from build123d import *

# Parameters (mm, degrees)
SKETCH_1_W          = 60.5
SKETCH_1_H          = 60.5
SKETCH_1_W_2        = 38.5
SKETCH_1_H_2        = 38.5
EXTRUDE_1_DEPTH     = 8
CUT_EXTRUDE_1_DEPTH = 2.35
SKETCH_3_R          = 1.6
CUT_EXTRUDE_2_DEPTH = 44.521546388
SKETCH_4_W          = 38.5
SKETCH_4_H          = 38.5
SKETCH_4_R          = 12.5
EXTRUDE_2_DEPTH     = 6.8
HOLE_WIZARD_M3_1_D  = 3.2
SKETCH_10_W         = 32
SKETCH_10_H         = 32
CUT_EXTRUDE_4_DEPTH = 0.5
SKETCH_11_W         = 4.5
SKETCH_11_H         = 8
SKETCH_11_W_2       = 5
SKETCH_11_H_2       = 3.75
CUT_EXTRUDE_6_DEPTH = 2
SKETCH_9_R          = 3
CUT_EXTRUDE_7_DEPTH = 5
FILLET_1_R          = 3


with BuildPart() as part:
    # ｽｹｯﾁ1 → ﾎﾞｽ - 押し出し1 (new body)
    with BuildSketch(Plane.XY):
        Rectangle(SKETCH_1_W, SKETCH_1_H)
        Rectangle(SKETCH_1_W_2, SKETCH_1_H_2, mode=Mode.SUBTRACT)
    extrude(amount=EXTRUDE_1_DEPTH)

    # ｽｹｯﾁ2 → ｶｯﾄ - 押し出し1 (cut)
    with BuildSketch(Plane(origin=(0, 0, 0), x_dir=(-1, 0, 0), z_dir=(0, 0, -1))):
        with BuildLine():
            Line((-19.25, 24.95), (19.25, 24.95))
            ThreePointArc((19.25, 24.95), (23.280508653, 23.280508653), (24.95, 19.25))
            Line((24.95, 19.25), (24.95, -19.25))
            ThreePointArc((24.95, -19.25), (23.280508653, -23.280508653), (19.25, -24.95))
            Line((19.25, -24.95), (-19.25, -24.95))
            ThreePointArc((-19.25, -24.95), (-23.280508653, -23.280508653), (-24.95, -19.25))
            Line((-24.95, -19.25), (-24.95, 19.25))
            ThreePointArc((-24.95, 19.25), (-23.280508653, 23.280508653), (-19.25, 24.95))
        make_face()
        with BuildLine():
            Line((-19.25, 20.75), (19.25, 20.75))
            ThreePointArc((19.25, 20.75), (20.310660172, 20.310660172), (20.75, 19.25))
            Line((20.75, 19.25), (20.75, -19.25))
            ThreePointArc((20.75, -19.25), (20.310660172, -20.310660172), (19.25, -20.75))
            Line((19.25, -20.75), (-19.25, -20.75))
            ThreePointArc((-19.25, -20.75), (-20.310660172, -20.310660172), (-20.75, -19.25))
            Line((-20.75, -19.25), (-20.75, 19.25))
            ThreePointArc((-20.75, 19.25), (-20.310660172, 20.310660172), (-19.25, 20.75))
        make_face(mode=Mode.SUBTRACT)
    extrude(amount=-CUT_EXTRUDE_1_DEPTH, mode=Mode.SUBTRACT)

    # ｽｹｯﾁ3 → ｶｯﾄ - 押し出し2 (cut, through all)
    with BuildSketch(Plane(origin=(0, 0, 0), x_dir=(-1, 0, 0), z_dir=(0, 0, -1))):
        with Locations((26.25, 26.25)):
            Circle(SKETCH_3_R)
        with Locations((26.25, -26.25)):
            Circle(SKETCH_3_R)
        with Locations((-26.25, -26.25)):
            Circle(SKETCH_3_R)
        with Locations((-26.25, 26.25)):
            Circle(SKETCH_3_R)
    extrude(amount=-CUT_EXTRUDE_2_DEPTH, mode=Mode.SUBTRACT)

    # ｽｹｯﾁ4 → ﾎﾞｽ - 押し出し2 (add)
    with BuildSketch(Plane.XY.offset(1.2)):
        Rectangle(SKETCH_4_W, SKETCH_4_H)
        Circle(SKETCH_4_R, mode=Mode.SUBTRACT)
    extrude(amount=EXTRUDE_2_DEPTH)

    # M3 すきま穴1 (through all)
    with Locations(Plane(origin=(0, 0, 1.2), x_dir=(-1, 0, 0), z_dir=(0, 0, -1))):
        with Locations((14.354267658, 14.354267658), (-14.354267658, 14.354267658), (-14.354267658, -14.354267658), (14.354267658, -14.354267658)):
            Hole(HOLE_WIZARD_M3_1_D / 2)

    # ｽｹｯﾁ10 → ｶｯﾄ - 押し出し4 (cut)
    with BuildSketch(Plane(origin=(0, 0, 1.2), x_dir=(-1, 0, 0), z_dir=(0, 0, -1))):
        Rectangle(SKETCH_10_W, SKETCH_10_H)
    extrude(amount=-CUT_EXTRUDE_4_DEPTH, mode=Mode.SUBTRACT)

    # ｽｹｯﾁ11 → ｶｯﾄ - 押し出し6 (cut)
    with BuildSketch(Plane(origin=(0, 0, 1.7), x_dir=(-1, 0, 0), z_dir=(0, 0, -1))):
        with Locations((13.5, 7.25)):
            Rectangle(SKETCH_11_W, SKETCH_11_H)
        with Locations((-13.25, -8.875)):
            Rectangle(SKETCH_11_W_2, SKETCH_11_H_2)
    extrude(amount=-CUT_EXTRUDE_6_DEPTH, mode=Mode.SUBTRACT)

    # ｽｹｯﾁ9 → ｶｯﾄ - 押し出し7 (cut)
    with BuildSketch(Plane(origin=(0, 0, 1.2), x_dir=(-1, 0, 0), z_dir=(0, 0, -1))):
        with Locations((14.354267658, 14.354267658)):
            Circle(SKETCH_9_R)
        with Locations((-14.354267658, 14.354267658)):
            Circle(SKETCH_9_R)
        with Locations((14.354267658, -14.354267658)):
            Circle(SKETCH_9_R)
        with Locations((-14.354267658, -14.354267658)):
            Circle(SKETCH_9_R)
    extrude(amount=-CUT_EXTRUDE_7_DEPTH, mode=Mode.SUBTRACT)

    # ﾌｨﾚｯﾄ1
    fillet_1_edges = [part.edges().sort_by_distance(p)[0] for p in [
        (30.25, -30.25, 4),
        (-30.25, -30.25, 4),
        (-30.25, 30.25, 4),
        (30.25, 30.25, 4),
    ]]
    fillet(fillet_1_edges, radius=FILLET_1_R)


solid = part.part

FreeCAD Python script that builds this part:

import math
import FreeCAD as App
import Part
import Sketcher
Q = App.Units.Quantity


def edges_at(feature, points):
    """Names of the edges that pass closest to the given points."""
    edges = feature.Shape.Edges
    near = lambda p: min(range(len(edges)), key=lambda i: edges[i].distToShape(Part.Vertex(*p))[0])
    return sorted({f"Edge{near(p) + 1}" for p in points})

doc = App.newDocument("Part")
params = doc.addObject("Spreadsheet::Sheet", "Params")
for row, (alias, value) in enumerate([
    ("sketch1_width", "60.5 mm"),
    ("sketch1_width2", "38.5 mm"),
    ("pad1_length", "8 mm"),
    ("sketch2_radius", "5.7 mm"),
    ("sketch2_radius2", "1.5 mm"),
    ("sketch2_width", "38.5 mm"),
    ("pocket1_length", "2.35 mm"),
    ("sketch3_diameter", "3.2 mm"),
    ("sketch4_diameter", "25 mm"),
    ("sketch4_width", "38.5 mm"),
    ("pad2_length", "6.8 mm"),
    ("sketch5_diameter", "3.2 mm"),
    ("hole_diameter", "3.2 mm"),
    ("sketch6_width", "32 mm"),
    ("pocket3_length", "0.5 mm"),
    ("sketch7_width", "5 mm"),
    ("sketch7_height", "8 mm"),
    ("sketch7_width2", "4.5 mm"),
    ("sketch7_height2", "3.75 mm"),
    ("pocket4_length", "2 mm"),
    ("sketch8_diameter", "6 mm"),
    ("pocket5_length", "5 mm"),
    ("fillet_radius", "3 mm"),
], start=1):
    params.set(f"A{row}", alias)
    params.set(f"B{row}", "=" + value)
    params.setAlias(f"B{row}", alias)

body = doc.addObject("PartDesign::Body", "Body")

sketch1 = body.newObject("Sketcher::SketchObject", "Sketch")
sketch1.AttachmentSupport = (doc.getObject("XY_Plane"), [""])
sketch1.MapMode = "FlatFace"
sketch1.addGeometry([
    Part.LineSegment(App.Vector(-30, 30, 0), App.Vector(-30, -30, 0)),
    Part.LineSegment(App.Vector(-30, -30, 0), App.Vector(30, -30, 0)),
    Part.LineSegment(App.Vector(30, -30, 0), App.Vector(30, 30, 0)),
    Part.LineSegment(App.Vector(30, 30, 0), App.Vector(-30, 30, 0)),
    Part.LineSegment(App.Vector(19, -19, 0), App.Vector(-19, -19, 0)),
    Part.LineSegment(App.Vector(-19, -19, 0), App.Vector(-19, 19, 0)),
    Part.LineSegment(App.Vector(-19, 19, 0), App.Vector(19, 19, 0)),
    Part.LineSegment(App.Vector(19, 19, 0), App.Vector(19, -19, 0)),
], False)
sketch1.addConstraint([
    Sketcher.Constraint("Coincident", 0, 2, 1, 1),
    Sketcher.Constraint("Coincident", 1, 2, 2, 1),
    Sketcher.Constraint("Coincident", 2, 2, 3, 1),
    Sketcher.Constraint("Coincident", 3, 2, 0, 1),
    Sketcher.Constraint("Coincident", 4, 2, 5, 1),
    Sketcher.Constraint("Coincident", 5, 2, 6, 1),
    Sketcher.Constraint("Coincident", 6, 2, 7, 1),
    Sketcher.Constraint("Coincident", 7, 2, 4, 1),
    Sketcher.Constraint("Vertical", 0),
    Sketcher.Constraint("Horizontal", 1),
    Sketcher.Constraint("Vertical", 2),
    Sketcher.Constraint("Horizontal", 3),
    Sketcher.Constraint("Horizontal", 4),
    Sketcher.Constraint("Vertical", 5),
    Sketcher.Constraint("Horizontal", 6),
    Sketcher.Constraint("Vertical", 7),
    Sketcher.Constraint("Symmetric", 0, 2, 2, 2, -1, 1),
    Sketcher.Constraint("Symmetric", 4, 2, 6, 2, -1, 1),
    Sketcher.Constraint("Equal", 3, 0),
    Sketcher.Constraint("Equal", 6, 5),
    Sketcher.Constraint("DistanceX", 1, 1, 1, 2, Q("60.5 mm")),
    Sketcher.Constraint("DistanceX", 4, 2, 4, 1, Q("38.5 mm")),
])
sketch1.setExpression("Constraints[20]", "Params.sketch1_width")
sketch1.setExpression("Constraints[21]", "Params.sketch1_width2")
pad1 = body.newObject("PartDesign::Pad", "Pad")
pad1.Profile = sketch1
pad1.setExpression("Length", "Params.pad1_length")

sketch2 = body.newObject("Sketcher::SketchObject", "Sketch001")
sketch2.AttachmentSupport = (doc.getObject("XY_Plane"), [""])
sketch2.MapMode = "FlatFace"
sketch2.addGeometry([
    Part.LineSegment(App.Vector(-19.2, 24.9, 0), App.Vector(19.2, 24.9, 0)),
    Part.ArcOfCircle(Part.Circle(App.Vector(19.3, 19.3, 0), App.Vector(0, 0, 1), 5.7), math.radians(0), math.radians(90)),
    Part.LineSegment(App.Vector(24.9, 19.2, 0), App.Vector(24.9, -19.2, 0)),
    Part.ArcOfCircle(Part.Circle(App.Vector(19.3, -19.3, 0), App.Vector(0, 0, 1), 5.7), math.radians(-90), math.radians(0)),
    Part.LineSegment(App.Vector(19.2, -24.9, 0), App.Vector(-19.2, -24.9, 0)),
    Part.ArcOfCircle(Part.Circle(App.Vector(-19.3, -19.3, 0), App.Vector(0, 0, 1), 5.7), math.radians(180), math.radians(270)),
    Part.LineSegment(App.Vector(-24.9, -19.2, 0), App.Vector(-24.9, 19.2, 0)),
    Part.ArcOfCircle(Part.Circle(App.Vector(-19.3, 19.3, 0), App.Vector(0, 0, 1), 5.7), math.radians(90), math.radians(180)),
    Part.LineSegment(App.Vector(19.2, 20.8, 0), App.Vector(-19.2, 20.8, 0)),
    Part.ArcOfCircle(Part.Circle(App.Vector(-19.3, 19.3, 0), App.Vector(0, 0, 1), 1.5), math.radians(90), math.radians(180)),
    Part.LineSegment(App.Vector(-20.8, 19.2, 0), App.Vector(-20.8, -19.2, 0)),
    Part.ArcOfCircle(Part.Circle(App.Vector(-19.3, -19.3, 0), App.Vector(0, 0, 1), 1.5), math.radians(180), math.radians(270)),
    Part.LineSegment(App.Vector(-19.2, -20.8, 0), App.Vector(19.2, -20.8, 0)),
    Part.ArcOfCircle(Part.Circle(App.Vector(19.3, -19.3, 0), App.Vector(0, 0, 1), 1.5), math.radians(-90), math.radians(0)),
    Part.LineSegment(App.Vector(20.8, -19.2, 0), App.Vector(20.8, 19.2, 0)),
    Part.ArcOfCircle(Part.Circle(App.Vector(19.3, 19.3, 0), App.Vector(0, 0, 1), 1.5), math.radians(0), math.radians(90)),
], False)
sketch2.addConstraint([
    Sketcher.Constraint("Tangent", 0, 2, 1, 2),
    Sketcher.Constraint("Tangent", 1, 1, 2, 1),
    Sketcher.Constraint("Tangent", 2, 2, 3, 2),
    Sketcher.Constraint("Tangent", 3, 1, 4, 1),
    Sketcher.Constraint("Tangent", 4, 2, 5, 2),
    Sketcher.Constraint("Tangent", 5, 1, 6, 1),
    Sketcher.Constraint("Tangent", 6, 2, 7, 2),
    Sketcher.Constraint("Tangent", 7, 1, 0, 1),
    Sketcher.Constraint("Tangent", 8, 2, 9, 1),
    Sketcher.Constraint("Tangent", 9, 2, 10, 1),
    Sketcher.Constraint("Tangent", 10, 2, 11, 1),
    Sketcher.Constraint("Tangent", 11, 2, 12, 1),
    Sketcher.Constraint("Tangent", 12, 2, 13, 1),
    Sketcher.Constraint("Tangent", 13, 2, 14, 1),
    Sketcher.Constraint("Tangent", 14, 2, 15, 1),
    Sketcher.Constraint("Tangent", 15, 2, 8, 1),
    Sketcher.Constraint("Horizontal", 0),
    Sketcher.Constraint("Vertical", 2),
    Sketcher.Constraint("Horizontal", 4),
    Sketcher.Constraint("Vertical", 6),
    Sketcher.Constraint("Horizontal", 8),
    Sketcher.Constraint("Vertical", 10),
    Sketcher.Constraint("Horizontal", 12),
    Sketcher.Constraint("Vertical", 14),
    Sketcher.Constraint("Coincident", 9, 3, 7, 3),
    Sketcher.Constraint("Coincident", 11, 3, 5, 3),
    Sketcher.Constraint("Coincident", 13, 3, 3, 3),
    Sketcher.Constraint("Equal", 1, 3),
    Sketcher.Constraint("Equal", 3, 5),
    Sketcher.Constraint("Equal", 5, 7),
    Sketcher.Constraint("Equal", 13, 15),
    Sketcher.Constraint("Symmetric", 1, 3, 5, 3, -1, 1),
    Sketcher.Constraint("Equal", 12, 2),
    Sketcher.Constraint("Radius", 1, Q("5.7 mm")),
    Sketcher.Constraint("Radius", 9, Q("1.5 mm")),
    Sketcher.Constraint("DistanceX", 0, 1, 0, 2, Q("38.5 mm")),
])
sketch2.setExpression("Constraints[33]", "Params.sketch2_radius")
sketch2.setExpression("Constraints[34]", "Params.sketch2_radius2")
sketch2.setExpression("Constraints[35]", "Params.sketch2_width")
pocket1 = body.newObject("PartDesign::Pocket", "Pocket")
pocket1.Profile = sketch2
pocket1.setExpression("Length", "Params.pocket1_length")
pocket1.Reversed = True

sketch3 = body.newObject("Sketcher::SketchObject", "Sketch002")
sketch3.AttachmentSupport = (doc.getObject("XY_Plane"), [""])
sketch3.MapMode = "FlatFace"
sketch3.addGeometry([
    Part.Circle(App.Vector(-26.2, 26.2, 0), App.Vector(0, 0, 1), 1.6),
    Part.Circle(App.Vector(-26.2, -26.2, 0), App.Vector(0, 0, 1), 1.6),
    Part.Circle(App.Vector(26.2, -26.2, 0), App.Vector(0, 0, 1), 1.6),
    Part.Circle(App.Vector(26.2, 26.2, 0), App.Vector(0, 0, 1), 1.6),
], False)
sketch3.addConstraint([
    Sketcher.Constraint("Equal", 0, 1),
    Sketcher.Constraint("Equal", 1, 2),
    Sketcher.Constraint("Equal", 2, 3),
    Sketcher.Constraint("Symmetric", 0, 3, 2, 3, -1, 1),
    Sketcher.Constraint("Symmetric", 1, 3, 3, 3, -1, 1),
    Sketcher.Constraint("Symmetric", 1, 3, 2, 3, -2),
    Sketcher.Constraint("Diameter", 0, Q("3.2 mm")),
    Sketcher.Constraint("DistanceY", 1, 3, 0, 3, Q("52.5 mm")),
    Sketcher.Constraint("DistanceX", 1, 3, 2, 3, Q("52.5 mm")),
])
sketch3.setExpression("Constraints[6]", "Params.sketch3_diameter")
pocket2 = body.newObject("PartDesign::Pocket", "Pocket001")
pocket2.Profile = sketch3
pocket2.Type = "ThroughAll"
pocket2.Reversed = True

sketch4 = body.newObject("Sketcher::SketchObject", "Sketch003")
sketch4.AttachmentSupport = (doc.getObject("XY_Plane"), [""])
sketch4.MapMode = "FlatFace"
sketch4.AttachmentOffset = App.Placement(App.Vector(0, 0, 1.2), App.Rotation())
sketch4.addGeometry([
    Part.LineSegment(App.Vector(-19, 19, 0), App.Vector(-19, -19, 0)),
    Part.LineSegment(App.Vector(-19, -19, 0), App.Vector(19, -19, 0)),
    Part.LineSegment(App.Vector(19, -19, 0), App.Vector(19, 19, 0)),
    Part.LineSegment(App.Vector(19, 19, 0), App.Vector(-19, 19, 0)),
    Part.Circle(App.Vector(0, 0, 0), App.Vector(0, 0, 1), 12),
], False)
sketch4.addConstraint([
    Sketcher.Constraint("Coincident", 0, 2, 1, 1),
    Sketcher.Constraint("Coincident", 1, 2, 2, 1),
    Sketcher.Constraint("Coincident", 2, 2, 3, 1),
    Sketcher.Constraint("Coincident", 3, 2, 0, 1),
    Sketcher.Constraint("Vertical", 0),
    Sketcher.Constraint("Horizontal", 1),
    Sketcher.Constraint("Vertical", 2),
    Sketcher.Constraint("Horizontal", 3),
    Sketcher.Constraint("Coincident", 4, 3, -1, 1),
    Sketcher.Constraint("Symmetric", 0, 2, 2, 2, -1, 1),
    Sketcher.Constraint("Equal", 3, 0),
    Sketcher.Constraint("Diameter", 4, Q("25 mm")),
    Sketcher.Constraint("DistanceX", 1, 1, 1, 2, Q("38.5 mm")),
])
sketch4.setExpression("Constraints[11]", "Params.sketch4_diameter")
sketch4.setExpression("Constraints[12]", "Params.sketch4_width")
pad2 = body.newObject("PartDesign::Pad", "Pad001")
pad2.Profile = sketch4
pad2.setExpression("Length", "Params.pad2_length")

sketch5 = body.newObject("Sketcher::SketchObject", "Sketch004")
sketch5.AttachmentSupport = (doc.getObject("XY_Plane"), [""])
sketch5.MapMode = "FlatFace"
sketch5.AttachmentOffset = App.Placement(App.Vector(0, 0, 1.2), App.Rotation())
sketch5.addGeometry([
    Part.Circle(App.Vector(-14.4, 14.4, 0), App.Vector(0, 0, 1), 1.6),
    Part.Circle(App.Vector(14.4, 14.4, 0), App.Vector(0, 0, 1), 1.6),
    Part.Circle(App.Vector(14.4, -14.4, 0), App.Vector(0, 0, 1), 1.6),
    Part.Circle(App.Vector(-14.4, -14.4, 0), App.Vector(0, 0, 1), 1.6),
], False)
sketch5.addConstraint([
    Sketcher.Constraint("Equal", 0, 1),
    Sketcher.Constraint("Equal", 1, 2),
    Sketcher.Constraint("Equal", 2, 3),
    Sketcher.Constraint("Symmetric", 0, 3, 2, 3, -1, 1),
    Sketcher.Constraint("Symmetric", 1, 3, 3, 3, -1, 1),
    Sketcher.Constraint("Symmetric", 0, 3, 1, 3, -2),
    Sketcher.Constraint("Diameter", 0, Q("3.2 mm")),
    Sketcher.Constraint("DistanceX", 0, 3, -1, 1, Q("14.354268 mm")),
    Sketcher.Constraint("DistanceY", -1, 1, 0, 3, Q("14.354268 mm")),
])
sketch5.setExpression("Constraints[6]", "Params.sketch5_diameter")
doc.recompute()
hole = body.newObject("PartDesign::Hole", "Hole")
hole.Profile = sketch5
hole.ThreadType = "None"
hole.setExpression("Diameter", "Params.hole_diameter")
hole.DepthType = "ThroughAll"
hole.Reversed = True

sketch6 = body.newObject("Sketcher::SketchObject", "Sketch005")
sketch6.AttachmentSupport = (doc.getObject("XY_Plane"), [""])
sketch6.MapMode = "FlatFace"
sketch6.AttachmentOffset = App.Placement(App.Vector(0, 0, 1.2), App.Rotation())
sketch6.addGeometry([
    Part.LineSegment(App.Vector(16, 16, 0), App.Vector(16, -16, 0)),
    Part.LineSegment(App.Vector(16, -16, 0), App.Vector(-16, -16, 0)),
    Part.LineSegment(App.Vector(-16, -16, 0), App.Vector(-16, 16, 0)),
    Part.LineSegment(App.Vector(-16, 16, 0), App.Vector(16, 16, 0)),
], False)
sketch6.addConstraint([
    Sketcher.Constraint("Coincident", 0, 2, 1, 1),
    Sketcher.Constraint("Coincident", 1, 2, 2, 1),
    Sketcher.Constraint("Coincident", 2, 2, 3, 1),
    Sketcher.Constraint("Coincident", 3, 2, 0, 1),
    Sketcher.Constraint("Vertical", 0),
    Sketcher.Constraint("Horizontal", 1),
    Sketcher.Constraint("Vertical", 2),
    Sketcher.Constraint("Horizontal", 3),
    Sketcher.Constraint("Symmetric", 0, 2, 2, 2, -1, 1),
    Sketcher.Constraint("Equal", 3, 0),
    Sketcher.Constraint("DistanceX", 1, 2, 1, 1, Q("32 mm")),
])
sketch6.setExpression("Constraints[10]", "Params.sketch6_width")
pocket3 = body.newObject("PartDesign::Pocket", "Pocket002")
pocket3.Profile = sketch6
pocket3.setExpression("Length", "Params.pocket3_length")
pocket3.Reversed = True

sketch7 = body.newObject("Sketcher::SketchObject", "Sketch006")
sketch7.AttachmentSupport = (doc.getObject("XY_Plane"), [""])
sketch7.MapMode = "FlatFace"
sketch7.AttachmentOffset = App.Placement(App.Vector(0, 0, 1.7), App.Rotation())
sketch7.addGeometry([
    Part.LineSegment(App.Vector(-11.2, 11.2, 0), App.Vector(-11.2, 3.2, 0)),
    Part.LineSegment(App.Vector(-11.2, 3.2, 0), App.Vector(-15.8, 3.2, 0)),
    Part.LineSegment(App.Vector(-15.8, 3.2, 0), App.Vector(-15.8, 11.2, 0)),
    Part.LineSegment(App.Vector(-15.8, 11.2, 0), App.Vector(-11.2, 11.2, 0)),
    Part.LineSegment(App.Vector(15.8, -7, 0), App.Vector(15.8, -10.8, 0)),
    Part.LineSegment(App.Vector(15.8, -10.8, 0), App.Vector(10.8, -10.8, 0)),
    Part.LineSegment(App.Vector(10.8, -10.8, 0), App.Vector(10.8, -7, 0)),
    Part.LineSegment(App.Vector(10.8, -7, 0), App.Vector(15.8, -7, 0)),
], False)
sketch7.addConstraint([
    Sketcher.Constraint("Coincident", 0, 2, 1, 1),
    Sketcher.Constraint("Coincident", 1, 2, 2, 1),
    Sketcher.Constraint("Coincident", 2, 2, 3, 1),
    Sketcher.Constraint("Coincident", 3, 2, 0, 1),
    Sketcher.Constraint("Coincident", 4, 2, 5, 1),
    Sketcher.Constraint("Coincident", 5, 2, 6, 1),
    Sketcher.Constraint("Coincident", 6, 2, 7, 1),
    Sketcher.Constraint("Coincident", 7, 2, 4, 1),
    Sketcher.Constraint("Vertical", 0),
    Sketcher.Constraint("Horizontal", 1),
    Sketcher.Constraint("Vertical", 2),
    Sketcher.Constraint("Horizontal", 3),
    Sketcher.Constraint("Vertical", 4),
    Sketcher.Constraint("Horizontal", 5),
    Sketcher.Constraint("Vertical", 6),
    Sketcher.Constraint("Horizontal", 7),
    Sketcher.Constraint("DistanceX", 5, 2, 5, 1, Q("5 mm")),
    Sketcher.Constraint("DistanceY", 0, 2, 0, 1, Q("8 mm")),
    Sketcher.Constraint("DistanceX", 1, 2, 1, 1, Q("4.5 mm")),
    Sketcher.Constraint("DistanceY", 6, 2, -1, 1, Q("7 mm")),
    Sketcher.Constraint("DistanceX", 0, 2, 4, 2, Q("27 mm")),
    Sketcher.Constraint("DistanceY", 4, 2, 0, 2, Q("14 mm")),
    Sketcher.Constraint("DistanceY", 4, 2, 4, 1, Q("3.75 mm")),
    Sketcher.Constraint("DistanceX", 0, 2, -1, 1, Q("11.25 mm")),
])
sketch7.setExpression("Constraints[16]", "Params.sketch7_width")
sketch7.setExpression("Constraints[17]", "Params.sketch7_height")
sketch7.setExpression("Constraints[18]", "Params.sketch7_width2")
sketch7.setExpression("Constraints[22]", "Params.sketch7_height2")
pocket4 = body.newObject("PartDesign::Pocket", "Pocket003")
pocket4.Profile = sketch7
pocket4.setExpression("Length", "Params.pocket4_length")
pocket4.Reversed = True

sketch8 = body.newObject("Sketcher::SketchObject", "Sketch007")
sketch8.AttachmentSupport = (doc.getObject("XY_Plane"), [""])
sketch8.MapMode = "FlatFace"
sketch8.AttachmentOffset = App.Placement(App.Vector(0, 0, 1.2), App.Rotation())
sketch8.addGeometry([
    Part.Circle(App.Vector(-14.4, 14.4, 0), App.Vector(0, 0, 1), 3),
    Part.Circle(App.Vector(14.4, 14.4, 0), App.Vector(0, 0, 1), 3),
    Part.Circle(App.Vector(-14.4, -14.4, 0), App.Vector(0, 0, 1), 3),
    Part.Circle(App.Vector(14.4, -14.4, 0), App.Vector(0, 0, 1), 3),
], False)
sketch8.addConstraint([
    Sketcher.Constraint("Equal", 0, 1),
    Sketcher.Constraint("Equal", 1, 2),
    Sketcher.Constraint("Equal", 2, 3),
    Sketcher.Constraint("Symmetric", 1, 3, 2, 3, -1, 1),
    Sketcher.Constraint("Symmetric", 0, 3, 3, 3, -1, 1),
    Sketcher.Constraint("Symmetric", 0, 3, 1, 3, -2),
    Sketcher.Constraint("Diameter", 0, Q("6 mm")),
    Sketcher.Constraint("DistanceX", 0, 3, -1, 1, Q("14.354268 mm")),
    Sketcher.Constraint("DistanceY", -1, 1, 0, 3, Q("14.354268 mm")),
])
sketch8.setExpression("Constraints[6]", "Params.sketch8_diameter")
pocket5 = body.newObject("PartDesign::Pocket", "Pocket004")
pocket5.Profile = sketch8
pocket5.setExpression("Length", "Params.pocket5_length")
pocket5.Reversed = True
doc.recompute()

fillet = body.newObject("PartDesign::Fillet", "Fillet")
fillet.Base = (pocket5, edges_at(pocket5, [
    (30.25, -30.25, 4),
    (-30.25, -30.25, 4),
    (-30.25, 30.25, 4),
    (30.25, 30.25, 4),
]))
fillet.setExpression("Radius", "Params.fillet_radius")

doc.recompute()
